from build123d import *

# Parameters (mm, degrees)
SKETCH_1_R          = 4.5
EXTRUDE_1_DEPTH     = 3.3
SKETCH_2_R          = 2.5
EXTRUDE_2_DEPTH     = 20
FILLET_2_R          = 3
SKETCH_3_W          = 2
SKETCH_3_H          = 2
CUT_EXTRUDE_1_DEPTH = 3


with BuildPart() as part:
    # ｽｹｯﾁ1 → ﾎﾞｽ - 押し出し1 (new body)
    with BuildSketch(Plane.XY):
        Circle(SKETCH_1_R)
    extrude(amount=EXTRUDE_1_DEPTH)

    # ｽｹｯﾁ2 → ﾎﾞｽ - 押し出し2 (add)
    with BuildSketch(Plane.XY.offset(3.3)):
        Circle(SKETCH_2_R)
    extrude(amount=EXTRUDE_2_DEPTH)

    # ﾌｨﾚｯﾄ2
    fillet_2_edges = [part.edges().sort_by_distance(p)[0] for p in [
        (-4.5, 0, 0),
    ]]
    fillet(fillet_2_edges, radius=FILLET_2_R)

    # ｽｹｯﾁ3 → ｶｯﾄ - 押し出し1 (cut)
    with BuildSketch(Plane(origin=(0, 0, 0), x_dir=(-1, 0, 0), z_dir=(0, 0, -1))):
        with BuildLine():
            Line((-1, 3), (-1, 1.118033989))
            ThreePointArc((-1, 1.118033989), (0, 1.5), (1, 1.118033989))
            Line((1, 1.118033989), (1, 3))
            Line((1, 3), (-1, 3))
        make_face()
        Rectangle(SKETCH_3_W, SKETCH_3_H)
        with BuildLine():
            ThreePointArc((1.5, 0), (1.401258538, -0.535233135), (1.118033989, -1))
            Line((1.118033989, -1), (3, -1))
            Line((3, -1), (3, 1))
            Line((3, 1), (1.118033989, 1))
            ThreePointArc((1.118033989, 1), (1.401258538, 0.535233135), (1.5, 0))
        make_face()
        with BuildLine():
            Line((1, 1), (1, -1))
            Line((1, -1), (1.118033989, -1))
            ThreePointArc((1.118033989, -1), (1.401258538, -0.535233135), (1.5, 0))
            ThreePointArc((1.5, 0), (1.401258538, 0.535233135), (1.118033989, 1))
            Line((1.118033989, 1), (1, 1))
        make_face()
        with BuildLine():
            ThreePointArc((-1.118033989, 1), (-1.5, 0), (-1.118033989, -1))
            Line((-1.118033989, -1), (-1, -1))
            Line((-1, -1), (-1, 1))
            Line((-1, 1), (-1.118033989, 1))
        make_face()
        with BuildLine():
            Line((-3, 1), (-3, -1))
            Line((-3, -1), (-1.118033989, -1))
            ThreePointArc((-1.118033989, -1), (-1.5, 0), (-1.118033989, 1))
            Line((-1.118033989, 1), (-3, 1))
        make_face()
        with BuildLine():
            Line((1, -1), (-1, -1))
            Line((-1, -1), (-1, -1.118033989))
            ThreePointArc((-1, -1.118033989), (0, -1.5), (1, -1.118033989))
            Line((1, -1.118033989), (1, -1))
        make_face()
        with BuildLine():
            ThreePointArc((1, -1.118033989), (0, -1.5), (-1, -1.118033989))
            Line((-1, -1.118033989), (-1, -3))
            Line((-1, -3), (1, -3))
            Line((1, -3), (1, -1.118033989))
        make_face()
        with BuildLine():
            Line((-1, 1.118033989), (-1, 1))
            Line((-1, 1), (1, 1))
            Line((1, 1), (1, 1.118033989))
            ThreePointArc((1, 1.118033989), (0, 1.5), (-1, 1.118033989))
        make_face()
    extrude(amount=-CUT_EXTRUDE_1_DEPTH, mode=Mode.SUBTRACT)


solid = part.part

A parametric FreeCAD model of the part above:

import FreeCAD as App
import Part
import Sketcher


def edges_at(feature, points):
    """Names of the edges that pass closest to the given points."""
    edges = feature.Shape.Edges
    near = lambda p: min(range(len(edges)), key=lambda i: edges[i].distToShape(Part.Vertex(*p))[0])
    return sorted({f"Edge{near(p) + 1}" for p in points})


def add_polygon(sketch, points):
    """Adds a closed chain of lines whose ends are joined by coincident constraints."""
    first, n = sketch.GeometryCount, len(points)
    for a, b in zip(points, points[1:] + points[:1]):
        sketch.addGeometry(Part.LineSegment(App.Vector(*a, 0), App.Vector(*b, 0)), False)
    for i in range(n):
        sketch.addConstraint(Sketcher.Constraint("Coincident", first + i, 2, first + (i + 1) % n, 1))

doc = App.newDocument("Part")
body = doc.addObject("PartDesign::Body", "Body")

# Sketch on XY plane
sketch1 = body.newObject("Sketcher::SketchObject", "Sketch")
sketch1.AttachmentSupport = (doc.getObject("XY_Plane"), [""])
sketch1.MapMode = "FlatFace"
sketch1.addGeometry(Part.Circle(App.Vector(0, 0, 0), App.Vector(0, 0, 1), 4.5), False)
sketch1.addConstraint(Sketcher.Constraint("Coincident", 0, 3, -1, 1))
sketch1.addConstraint(Sketcher.Constraint("Diameter", 0, 9.0))
pad1 = body.newObject("PartDesign::Pad", "Pad")
pad1.Profile = sketch1
pad1.Length = 3.3

# Sketch on XY plane
sketch2 = body.newObject("Sketcher::SketchObject", "Sketch001")
sketch2.AttachmentSupport = (doc.getObject("XY_Plane"), [""])
sketch2.MapMode = "FlatFace"
sketch2.AttachmentOffset = App.Placement(App.Vector(0, 0, 3.3), App.Rotation())
sketch2.addGeometry(Part.Circle(App.Vector(0, 0, 0), App.Vector(0, 0, 1), 2.5), False)
sketch2.addConstraint(Sketcher.Constraint("Coincident", 0, 3, -1, 1))
sketch2.addConstraint(Sketcher.Constraint("Diameter", 0, 5.0))
pad2 = body.newObject("PartDesign::Pad", "Pad001")
pad2.Profile = sketch2
pad2.Length = 20
doc.recompute()

fillet = body.newObject("PartDesign::Fillet", "Fillet")
fillet.Base = (pad2, edges_at(pad2, [(-4.5, 0, 0)]))
fillet.Radius = 3

# Sketch on XY plane
sketch3 = body.newObject("Sketcher::SketchObject", "Sketch002")
sketch3.AttachmentSupport = (doc.getObject("XY_Plane"), [""])
sketch3.MapMode = "FlatFace"
add_polygon(sketch3, [(1, 3), (1, 1), (3, 1), (3, -1), (1, -1), (1, -3), (-1, -3), (-1, -1), (-3, -1), (-3, 1), (-1, 1), (-1, 3)])  # lines 0-11
sketch3.addConstraint(Sketcher.Constraint("Vertical", 0))
sketch3.addConstraint(Sketcher.Constraint("Horizontal", 1))
sketch3.addConstraint(Sketcher.Constraint("Vertical", 2))
sketch3.addConstraint(Sketcher.Constraint("Horizontal", 3))
sketch3.addConstraint(Sketcher.Constraint("Vertical", 4))
sketch3.addConstraint(Sketcher.Constraint("Horizontal", 5))
sketch3.addConstraint(Sketcher.Constraint("Vertical", 6))
sketch3.addConstraint(Sketcher.Constraint("Horizontal", 7))
sketch3.addConstraint(Sketcher.Constraint("Vertical", 8))
sketch3.addConstraint(Sketcher.Constraint("Horizontal", 9))
sketch3.addConstraint(Sketcher.Constraint("Vertical", 10))
sketch3.addConstraint(Sketcher.Constraint("Horizontal", 11))
sketch3.addConstraint(Sketcher.Constraint("Symmetric", 0, 2, 6, 2, -1, 1))
sketch3.addConstraint(Sketcher.Constraint("Symmetric", 2, 2, 8, 2, -1, 1))
sketch3.addConstraint(Sketcher.Constraint("Symmetric", 4, 2, 10, 2, -1, 1))
sketch3.addConstraint(Sketcher.Constraint("Symmetric", 3, 2, 6, 2, -2))
sketch3.addConstraint(Sketcher.Constraint("Equal", 3, 5))
sketch3.addConstraint(Sketcher.Constraint("Equal", 11, 0))
sketch3.addConstraint(Sketcher.Constraint("Equal", 0, 2))
sketch3.addConstraint(Sketcher.Constraint("DistanceX", 1, 1, 1, 2, 2.0))
pocket1 = body.newObject("PartDesign::Pocket", "Pocket")
pocket1.Profile = sketch3
pocket1.Length = 3
pocket1.Reversed = True

doc.recompute()
